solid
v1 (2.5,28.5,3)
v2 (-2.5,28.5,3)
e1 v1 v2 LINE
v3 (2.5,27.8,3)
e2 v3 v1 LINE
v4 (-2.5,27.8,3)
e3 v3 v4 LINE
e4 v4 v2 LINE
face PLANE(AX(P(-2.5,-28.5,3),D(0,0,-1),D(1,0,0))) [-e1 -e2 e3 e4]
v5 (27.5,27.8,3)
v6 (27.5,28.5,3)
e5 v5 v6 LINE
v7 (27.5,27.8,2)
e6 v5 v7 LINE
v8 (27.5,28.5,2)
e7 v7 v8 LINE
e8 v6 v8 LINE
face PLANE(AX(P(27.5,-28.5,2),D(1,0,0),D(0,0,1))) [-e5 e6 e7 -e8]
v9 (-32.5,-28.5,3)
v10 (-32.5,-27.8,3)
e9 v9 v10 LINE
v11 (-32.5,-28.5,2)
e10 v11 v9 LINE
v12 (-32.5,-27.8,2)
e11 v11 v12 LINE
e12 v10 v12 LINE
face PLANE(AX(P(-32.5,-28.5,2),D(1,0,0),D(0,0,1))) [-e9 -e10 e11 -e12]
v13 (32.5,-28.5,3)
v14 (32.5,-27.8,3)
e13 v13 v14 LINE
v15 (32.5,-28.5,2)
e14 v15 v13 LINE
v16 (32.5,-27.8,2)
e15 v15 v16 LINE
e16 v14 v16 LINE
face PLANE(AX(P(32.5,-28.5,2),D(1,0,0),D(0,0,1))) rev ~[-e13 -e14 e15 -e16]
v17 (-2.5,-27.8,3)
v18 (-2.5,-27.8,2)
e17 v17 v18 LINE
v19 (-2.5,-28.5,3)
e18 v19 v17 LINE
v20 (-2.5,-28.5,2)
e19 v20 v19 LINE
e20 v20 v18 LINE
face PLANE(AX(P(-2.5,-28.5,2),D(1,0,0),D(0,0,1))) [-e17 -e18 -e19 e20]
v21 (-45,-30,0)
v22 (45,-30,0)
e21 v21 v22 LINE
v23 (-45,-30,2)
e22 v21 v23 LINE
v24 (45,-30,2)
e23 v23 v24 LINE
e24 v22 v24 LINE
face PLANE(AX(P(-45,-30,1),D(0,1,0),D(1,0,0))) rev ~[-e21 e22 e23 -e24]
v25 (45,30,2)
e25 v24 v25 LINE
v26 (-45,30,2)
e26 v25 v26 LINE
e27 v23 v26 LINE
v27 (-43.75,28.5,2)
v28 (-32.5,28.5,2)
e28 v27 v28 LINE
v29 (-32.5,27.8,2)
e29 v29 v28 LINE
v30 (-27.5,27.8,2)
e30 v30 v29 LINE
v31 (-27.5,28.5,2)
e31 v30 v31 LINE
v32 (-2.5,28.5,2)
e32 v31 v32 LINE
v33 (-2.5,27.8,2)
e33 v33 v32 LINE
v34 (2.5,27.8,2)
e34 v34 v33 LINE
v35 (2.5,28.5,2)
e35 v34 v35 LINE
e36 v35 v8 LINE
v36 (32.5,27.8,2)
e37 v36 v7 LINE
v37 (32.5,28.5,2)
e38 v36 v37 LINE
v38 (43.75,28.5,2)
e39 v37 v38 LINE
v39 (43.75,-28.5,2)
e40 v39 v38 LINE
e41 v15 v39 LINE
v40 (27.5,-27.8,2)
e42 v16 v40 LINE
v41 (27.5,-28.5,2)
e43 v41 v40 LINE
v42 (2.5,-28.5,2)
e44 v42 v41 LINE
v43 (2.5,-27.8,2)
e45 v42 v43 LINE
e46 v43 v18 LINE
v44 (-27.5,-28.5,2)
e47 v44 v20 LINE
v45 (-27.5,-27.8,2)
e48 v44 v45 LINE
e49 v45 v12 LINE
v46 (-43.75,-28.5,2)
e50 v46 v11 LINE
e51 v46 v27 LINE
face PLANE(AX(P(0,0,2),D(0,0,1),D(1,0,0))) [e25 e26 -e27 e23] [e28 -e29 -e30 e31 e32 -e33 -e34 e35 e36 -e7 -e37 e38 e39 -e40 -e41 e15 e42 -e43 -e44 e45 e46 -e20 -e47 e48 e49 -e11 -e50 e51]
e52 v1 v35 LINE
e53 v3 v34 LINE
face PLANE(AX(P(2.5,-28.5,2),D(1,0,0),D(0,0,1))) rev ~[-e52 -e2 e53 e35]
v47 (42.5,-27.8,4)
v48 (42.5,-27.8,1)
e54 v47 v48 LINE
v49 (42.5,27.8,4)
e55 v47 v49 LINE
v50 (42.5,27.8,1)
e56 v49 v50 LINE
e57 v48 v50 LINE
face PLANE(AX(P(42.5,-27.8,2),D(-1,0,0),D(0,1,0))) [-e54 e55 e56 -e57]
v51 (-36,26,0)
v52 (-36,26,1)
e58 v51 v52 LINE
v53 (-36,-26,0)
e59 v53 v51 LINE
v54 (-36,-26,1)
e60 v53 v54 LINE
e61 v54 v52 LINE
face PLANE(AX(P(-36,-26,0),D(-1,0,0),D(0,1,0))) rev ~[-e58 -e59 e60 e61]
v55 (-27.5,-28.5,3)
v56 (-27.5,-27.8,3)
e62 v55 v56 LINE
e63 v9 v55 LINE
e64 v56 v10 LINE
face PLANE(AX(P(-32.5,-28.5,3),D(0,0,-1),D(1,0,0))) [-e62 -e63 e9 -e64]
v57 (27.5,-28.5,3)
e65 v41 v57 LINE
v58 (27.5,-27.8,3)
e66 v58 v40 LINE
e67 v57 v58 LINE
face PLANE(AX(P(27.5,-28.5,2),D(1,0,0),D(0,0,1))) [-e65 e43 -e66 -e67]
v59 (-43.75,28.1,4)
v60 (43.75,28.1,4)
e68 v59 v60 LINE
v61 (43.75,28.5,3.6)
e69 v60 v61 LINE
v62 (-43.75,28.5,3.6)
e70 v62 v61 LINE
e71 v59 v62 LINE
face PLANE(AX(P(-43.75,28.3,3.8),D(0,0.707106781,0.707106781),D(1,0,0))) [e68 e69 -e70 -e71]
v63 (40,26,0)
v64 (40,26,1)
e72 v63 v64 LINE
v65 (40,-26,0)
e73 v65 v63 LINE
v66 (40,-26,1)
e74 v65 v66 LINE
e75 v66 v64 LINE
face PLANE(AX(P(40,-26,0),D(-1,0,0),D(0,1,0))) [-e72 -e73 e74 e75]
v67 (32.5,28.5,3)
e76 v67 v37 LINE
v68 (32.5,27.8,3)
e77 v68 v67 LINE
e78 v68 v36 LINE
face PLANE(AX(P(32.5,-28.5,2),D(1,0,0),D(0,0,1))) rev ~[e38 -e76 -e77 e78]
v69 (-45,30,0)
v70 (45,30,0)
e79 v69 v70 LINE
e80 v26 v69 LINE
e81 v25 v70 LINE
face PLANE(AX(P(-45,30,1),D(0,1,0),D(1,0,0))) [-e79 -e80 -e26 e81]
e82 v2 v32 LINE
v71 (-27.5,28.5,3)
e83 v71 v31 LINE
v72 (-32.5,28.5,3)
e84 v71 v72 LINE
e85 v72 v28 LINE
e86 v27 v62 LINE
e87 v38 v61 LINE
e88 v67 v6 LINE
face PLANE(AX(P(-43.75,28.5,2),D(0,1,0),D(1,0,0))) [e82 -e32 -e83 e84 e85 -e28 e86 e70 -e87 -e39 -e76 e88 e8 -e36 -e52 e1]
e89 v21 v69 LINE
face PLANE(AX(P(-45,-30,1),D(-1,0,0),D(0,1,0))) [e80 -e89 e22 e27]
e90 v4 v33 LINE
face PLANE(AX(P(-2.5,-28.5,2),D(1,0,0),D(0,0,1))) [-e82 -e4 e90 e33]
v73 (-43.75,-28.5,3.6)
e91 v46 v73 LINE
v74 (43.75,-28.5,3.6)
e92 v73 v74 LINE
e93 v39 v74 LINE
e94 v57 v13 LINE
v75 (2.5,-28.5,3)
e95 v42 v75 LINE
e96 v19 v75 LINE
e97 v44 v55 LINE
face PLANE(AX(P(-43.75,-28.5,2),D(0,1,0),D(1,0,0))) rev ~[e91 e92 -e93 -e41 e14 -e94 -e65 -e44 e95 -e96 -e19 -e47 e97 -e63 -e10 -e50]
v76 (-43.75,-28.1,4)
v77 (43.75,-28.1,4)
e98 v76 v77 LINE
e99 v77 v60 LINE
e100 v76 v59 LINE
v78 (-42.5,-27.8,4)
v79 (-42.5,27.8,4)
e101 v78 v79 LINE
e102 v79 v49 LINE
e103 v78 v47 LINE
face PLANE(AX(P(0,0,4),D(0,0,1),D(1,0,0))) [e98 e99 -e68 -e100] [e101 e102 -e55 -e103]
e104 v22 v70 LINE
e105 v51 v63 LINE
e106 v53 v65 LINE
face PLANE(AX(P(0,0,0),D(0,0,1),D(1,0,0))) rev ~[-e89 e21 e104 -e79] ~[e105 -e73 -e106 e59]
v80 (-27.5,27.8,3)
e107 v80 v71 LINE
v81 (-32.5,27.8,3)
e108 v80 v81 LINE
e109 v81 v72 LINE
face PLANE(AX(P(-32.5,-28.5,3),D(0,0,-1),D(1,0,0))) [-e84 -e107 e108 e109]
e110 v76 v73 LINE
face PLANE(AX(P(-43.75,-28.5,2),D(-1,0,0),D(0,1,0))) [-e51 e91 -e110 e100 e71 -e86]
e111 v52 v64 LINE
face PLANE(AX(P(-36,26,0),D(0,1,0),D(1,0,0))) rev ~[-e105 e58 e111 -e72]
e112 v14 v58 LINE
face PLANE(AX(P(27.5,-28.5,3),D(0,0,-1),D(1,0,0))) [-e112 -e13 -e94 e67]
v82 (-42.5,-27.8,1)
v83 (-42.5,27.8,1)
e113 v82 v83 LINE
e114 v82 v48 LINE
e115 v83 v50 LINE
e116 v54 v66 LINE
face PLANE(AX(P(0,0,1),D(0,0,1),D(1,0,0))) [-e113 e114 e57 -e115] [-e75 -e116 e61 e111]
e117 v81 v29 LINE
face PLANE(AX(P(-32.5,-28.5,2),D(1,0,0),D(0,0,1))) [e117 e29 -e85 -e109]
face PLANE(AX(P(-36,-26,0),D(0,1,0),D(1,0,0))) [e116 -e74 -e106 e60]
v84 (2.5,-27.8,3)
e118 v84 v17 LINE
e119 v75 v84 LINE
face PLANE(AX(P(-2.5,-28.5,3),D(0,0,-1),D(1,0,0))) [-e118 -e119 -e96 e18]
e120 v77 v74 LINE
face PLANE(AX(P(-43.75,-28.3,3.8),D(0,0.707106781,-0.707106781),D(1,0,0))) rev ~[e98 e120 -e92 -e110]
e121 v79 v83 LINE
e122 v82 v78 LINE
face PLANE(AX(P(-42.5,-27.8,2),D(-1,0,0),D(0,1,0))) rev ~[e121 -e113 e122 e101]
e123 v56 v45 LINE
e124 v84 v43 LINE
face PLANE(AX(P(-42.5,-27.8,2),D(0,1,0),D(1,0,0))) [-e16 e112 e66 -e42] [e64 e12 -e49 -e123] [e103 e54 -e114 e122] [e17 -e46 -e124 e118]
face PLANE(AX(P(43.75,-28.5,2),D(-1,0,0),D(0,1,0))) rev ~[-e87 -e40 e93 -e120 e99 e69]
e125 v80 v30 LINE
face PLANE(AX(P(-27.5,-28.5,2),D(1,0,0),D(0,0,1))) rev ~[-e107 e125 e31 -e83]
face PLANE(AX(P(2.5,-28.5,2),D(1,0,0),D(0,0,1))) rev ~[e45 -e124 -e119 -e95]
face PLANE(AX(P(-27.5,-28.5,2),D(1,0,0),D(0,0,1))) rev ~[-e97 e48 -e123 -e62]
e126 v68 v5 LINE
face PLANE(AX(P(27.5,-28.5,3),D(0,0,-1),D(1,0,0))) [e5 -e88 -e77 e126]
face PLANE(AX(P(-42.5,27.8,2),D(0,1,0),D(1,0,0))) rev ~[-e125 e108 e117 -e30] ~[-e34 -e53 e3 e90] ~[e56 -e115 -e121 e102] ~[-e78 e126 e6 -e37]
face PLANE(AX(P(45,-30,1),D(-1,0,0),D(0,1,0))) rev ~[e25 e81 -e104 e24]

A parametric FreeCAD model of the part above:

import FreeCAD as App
import Part
import Sketcher

V = App.Vector
Q = App.Units.Quantity


def edges_at(feature, points):
    """Names of the edges that pass closest to the given points."""
    edges = feature.Shape.Edges
    near = lambda p: min(range(len(edges)), key=lambda i: edges[i].distToShape(Part.Vertex(*p))[0])
    return sorted({f"Edge{near(p) + 1}" for p in points})

doc = App.newDocument("Part")
params = doc.addObject("Spreadsheet::Sheet", "Params")
for row, (alias, value) in enumerate([
    ("sketch1_width", "90 mm"),
    ("sketch1_width2", "76 mm"),
    ("sketch1_height", "60 mm"),
    ("sketch1_height2", "52 mm"),
    ("pad1_length", "1 mm"),
    ("sketch2_width", "90 mm"),
    ("sketch2_width2", "85 mm"),
    ("sketch2_height", "60 mm"),
    ("sketch2_height2", "55.6 mm"),
    ("pad2_length", "1 mm"),
    ("sketch3_width", "85 mm"),
    ("sketch3_height", "57 mm"),
    ("sketch3_width2", "87.5 mm"),
    ("sketch3_height2", "55.6 mm"),
    ("pad3_length", "2 mm"),
    ("sketch4_width", "5 mm"),
    ("sketch4_height", "1 mm"),
    ("chamfer_size", "0.4 mm"),
], start=1):
    params.set(f"A{row}", alias)
    params.set(f"B{row}", "=" + value)
    params.setAlias(f"B{row}", alias)

body = doc.addObject("PartDesign::Body", "Body")

sketch1 = body.newObject("Sketcher::SketchObject", "Sketch")
sketch1.AttachmentSupport = (doc.getObject("XY_Plane"), [""])
sketch1.MapMode = "FlatFace"
sketch1.addGeometry(Part.LineSegment(V(-45, 30, 0), V(-45, -30, 0)), False)
sketch1.addGeometry(Part.LineSegment(V(-45, -30, 0), V(45, -30, 0)), False)
sketch1.addGeometry(Part.LineSegment(V(45, -30, 0), V(45, 30, 0)), False)
sketch1.addGeometry(Part.LineSegment(V(45, 30, 0), V(-45, 30, 0)), False)
sketch1.addGeometry(Part.LineSegment(V(40, -26, 0), V(-36, -26, 0)), False)
sketch1.addGeometry(Part.LineSegment(V(-36, -26, 0), V(-36, 26, 0)), False)
sketch1.addGeometry(Part.LineSegment(V(-36, 26, 0), V(40, 26, 0)), False)
sketch1.addGeometry(Part.LineSegment(V(40, 26, 0), V(40, -26, 0)), False)
sketch1.addConstraint(Sketcher.Constraint("Coincident", 0, 2, 1, 1))
sketch1.addConstraint(Sketcher.Constraint("Coincident", 1, 2, 2, 1))
sketch1.addConstraint(Sketcher.Constraint("Coincident", 2, 2, 3, 1))
sketch1.addConstraint(Sketcher.Constraint("Coincident", 3, 2, 0, 1))
sketch1.addConstraint(Sketcher.Constraint("Coincident", 4, 2, 5, 1))
sketch1.addConstraint(Sketcher.Constraint("Coincident", 5, 2, 6, 1))
sketch1.addConstraint(Sketcher.Constraint("Coincident", 6, 2, 7, 1))
sketch1.addConstraint(Sketcher.Constraint("Coincident", 7, 2, 4, 1))
sketch1.addConstraint(Sketcher.Constraint("Vertical", 0))
sketch1.addConstraint(Sketcher.Constraint("Horizontal", 1))
sketch1.addConstraint(Sketcher.Constraint("Vertical", 2))
sketch1.addConstraint(Sketcher.Constraint("Horizontal", 3))
sketch1.addConstraint(Sketcher.Constraint("Horizontal", 4))
sketch1.addConstraint(Sketcher.Constraint("Vertical", 5))
sketch1.addConstraint(Sketcher.Constraint("Horizontal", 6))
sketch1.addConstraint(Sketcher.Constraint("Vertical", 7))
sketch1.addConstraint(Sketcher.Constraint("Symmetric", 0, 2, 2, 2, -1, 1))
sketch1.addConstraint(Sketcher.Constraint("DistanceX", 1, 1, 1, 2, Q("90 mm")))
sketch1.addConstraint(Sketcher.Constraint("DistanceX", 4, 2, 4, 1, Q("76 mm")))
sketch1.addConstraint(Sketcher.Constraint("DistanceY", 0, 2, 0, 1, Q("60 mm")))
sketch1.addConstraint(Sketcher.Constraint("DistanceY", 5, 1, 5, 2, Q("52 mm")))
sketch1.addConstraint(Sketcher.Constraint("DistanceX", 4, 2, -1, 1, Q("36 mm")))
sketch1.addConstraint(Sketcher.Constraint("DistanceY", 4, 2, -1, 1, Q("26 mm")))
sketch1.setExpression("Constraints[17]", "Params.sketch1_width")
sketch1.setExpression("Constraints[18]", "Params.sketch1_width2")
sketch1.setExpression("Constraints[19]", "Params.sketch1_height")
sketch1.setExpression("Constraints[20]", "Params.sketch1_height2")
pad1 = body.newObject("PartDesign::Pad", "Pad")
pad1.Profile = sketch1
pad1.setExpression("Length", "Params.pad1_length")

sketch2 = body.newObject("Sketcher::SketchObject", "Sketch001")
sketch2.AttachmentSupport = (doc.getObject("XY_Plane"), [""])
sketch2.MapMode = "FlatFace"
sketch2.AttachmentOffset = App.Placement(V(0, 0, 1), App.Rotation())
sketch2.addGeometry(Part.LineSegment(V(-45, 30, 0), V(-45, -30, 0)), False)
sketch2.addGeometry(Part.LineSegment(V(-45, -30, 0), V(45, -30, 0)), False)
sketch2.addGeometry(Part.LineSegment(V(45, -30, 0), V(45, 30, 0)), False)
sketch2.addGeometry(Part.LineSegment(V(45, 30, 0), V(-45, 30, 0)), False)
sketch2.addGeometry(Part.LineSegment(V(42, -28, 0), V(-42, -28, 0)), False)
sketch2.addGeometry(Part.LineSegment(V(-42, -28, 0), V(-42, 28, 0)), False)
sketch2.addGeometry(Part.LineSegment(V(-42, 28, 0), V(42, 28, 0)), False)
sketch2.addGeometry(Part.LineSegment(V(42, 28, 0), V(42, -28, 0)), False)
sketch2.addConstraint(Sketcher.Constraint("Coincident", 0, 2, 1, 1))
sketch2.addConstraint(Sketcher.Constraint("Coincident", 1, 2, 2, 1))
sketch2.addConstraint(Sketcher.Constraint("Coincident", 2, 2, 3, 1))
sketch2.addConstraint(Sketcher.Constraint("Coincident", 3, 2, 0, 1))
sketch2.addConstraint(Sketcher.Constraint("Coincident", 4, 2, 5, 1))
sketch2.addConstraint(Sketcher.Constraint("Coincident", 5, 2, 6, 1))
sketch2.addConstraint(Sketcher.Constraint("Coincident", 6, 2, 7, 1))
sketch2.addConstraint(Sketcher.Constraint("Coincident", 7, 2, 4, 1))
sketch2.addConstraint(Sketcher.Constraint("Vertical", 0))
sketch2.addConstraint(Sketcher.Constraint("Horizontal", 1))
sketch2.addConstraint(Sketcher.Constraint("Vertical", 2))
sketch2.addConstraint(Sketcher.Constraint("Horizontal", 3))
sketch2.addConstraint(Sketcher.Constraint("Horizontal", 4))
sketch2.addConstraint(Sketcher.Constraint("Vertical", 5))
sketch2.addConstraint(Sketcher.Constraint("Horizontal", 6))
sketch2.addConstraint(Sketcher.Constraint("Vertical", 7))
sketch2.addConstraint(Sketcher.Constraint("Symmetric", 0, 2, 2, 2, -1, 1))
sketch2.addConstraint(Sketcher.Constraint("Symmetric", 4, 2, 6, 2, -1, 1))
sketch2.addConstraint(Sketcher.Constraint("DistanceX", 1, 1, 1, 2, Q("90 mm")))
sketch2.addConstraint(Sketcher.Constraint("DistanceX", 4, 2, 4, 1, Q("85 mm")))
sketch2.addConstraint(Sketcher.Constraint("DistanceY", 0, 2, 0, 1, Q("60 mm")))
sketch2.addConstraint(Sketcher.Constraint("DistanceY", 5, 1, 5, 2, Q("55.6 mm")))
sketch2.setExpression("Constraints[18]", "Params.sketch2_width")
sketch2.setExpression("Constraints[19]", "Params.sketch2_width2")
sketch2.setExpression("Constraints[20]", "Params.sketch2_height")
sketch2.setExpression("Constraints[21]", "Params.sketch2_height2")
pad2 = body.newObject("PartDesign::Pad", "Pad001")
pad2.Profile = sketch2
pad2.setExpression("Length", "Params.pad2_length")

sketch3 = body.newObject("Sketcher::SketchObject", "Sketch002")
sketch3.AttachmentSupport = (doc.getObject("XY_Plane"), [""])
sketch3.MapMode = "FlatFace"
sketch3.AttachmentOffset = App.Placement(V(0, 0, 2), App.Rotation())
sketch3.addGeometry(Part.LineSegment(V(-44, 28, 0), V(-44, -28, 0)), False)
sketch3.addGeometry(Part.LineSegment(V(-44, -28, 0), V(44, -28, 0)), False)
sketch3.addGeometry(Part.LineSegment(V(44, -28, 0), V(44, 28, 0)), False)
sketch3.addGeometry(Part.LineSegment(V(44, 28, 0), V(-44, 28, 0)), False)
sketch3.addGeometry(Part.LineSegment(V(42, -28, 0), V(-42, -28, 0)), False)
sketch3.addGeometry(Part.LineSegment(V(-42, -28, 0), V(-42, 28, 0)), False)
sketch3.addGeometry(Part.LineSegment(V(-42, 28, 0), V(42, 28, 0)), False)
sketch3.addGeometry(Part.LineSegment(V(42, 28, 0), V(42, -28, 0)), False)
sketch3.addConstraint(Sketcher.Constraint("Coincident", 0, 2, 1, 1))
sketch3.addConstraint(Sketcher.Constraint("Coincident", 1, 2, 2, 1))
sketch3.addConstraint(Sketcher.Constraint("Coincident", 2, 2, 3, 1))
sketch3.addConstraint(Sketcher.Constraint("Coincident", 3, 2, 0, 1))
sketch3.addConstraint(Sketcher.Constraint("Coincident", 4, 2, 5, 1))
sketch3.addConstraint(Sketcher.Constraint("Coincident", 5, 2, 6, 1))
sketch3.addConstraint(Sketcher.Constraint("Coincident", 6, 2, 7, 1))
sketch3.addConstraint(Sketcher.Constraint("Coincident", 7, 2, 4, 1))
sketch3.addConstraint(Sketcher.Constraint("Vertical", 0))
sketch3.addConstraint(Sketcher.Constraint("Horizontal", 1))
sketch3.addConstraint(Sketcher.Constraint("Vertical", 2))
sketch3.addConstraint(Sketcher.Constraint("Horizontal", 3))
sketch3.addConstraint(Sketcher.Constraint("Horizontal", 4))
sketch3.addConstraint(Sketcher.Constraint("Vertical", 5))
sketch3.addConstraint(Sketcher.Constraint("Horizontal", 6))
sketch3.addConstraint(Sketcher.Constraint("Vertical", 7))
sketch3.addConstraint(Sketcher.Constraint("Symmetric", 0, 2, 2, 2, -1, 1))
sketch3.addConstraint(Sketcher.Constraint("Symmetric", 4, 2, 6, 2, -1, 1))
sketch3.addConstraint(Sketcher.Constraint("DistanceX", 4, 2, 4, 1, Q("85 mm")))
sketch3.addConstraint(Sketcher.Constraint("DistanceY", 0, 2, 0, 1, Q("57 mm")))
sketch3.addConstraint(Sketcher.Constraint("DistanceX", 1, 1, 1, 2, Q("87.5 mm")))
sketch3.addConstraint(Sketcher.Constraint("DistanceY", 5, 1, 5, 2, Q("55.6 mm")))
sketch3.setExpression("Constraints[18]", "Params.sketch3_width")
sketch3.setExpression("Constraints[19]", "Params.sketch3_height")
sketch3.setExpression("Constraints[20]", "Params.sketch3_width2")
sketch3.setExpression("Constraints[21]", "Params.sketch3_height2")
pad3 = body.newObject("PartDesign::Pad", "Pad002")
pad3.Profile = sketch3
pad3.setExpression("Length", "Params.pad3_length")

sketch4 = body.newObject("Sketcher::SketchObject", "Sketch003")
sketch4.AttachmentSupport = (doc.getObject("XZ_Plane"), [""])
sketch4.MapMode = "FlatFace"
sketch4.AttachmentOffset = App.Placement(V(0, 0, 28.5), App.Rotation())
sketch4.addGeometry(Part.LineSegment(V(-32.5, 3, 0), V(-32.5, 2, 0)), False)
sketch4.addGeometry(Part.LineSegment(V(-32.5, 2, 0), V(-27.5, 2, 0)), False)
sketch4.addGeometry(Part.LineSegment(V(-27.5, 2, 0), V(-27.5, 3, 0)), False)
sketch4.addGeometry(Part.LineSegment(V(-27.5, 3, 0), V(-32.5, 3, 0)), False)
sketch4.addGeometry(Part.LineSegment(V(-2.5, 3, 0), V(-2.5, 2, 0)), False)
sketch4.addGeometry(Part.LineSegment(V(-2.5, 2, 0), V(2.5, 2, 0)), False)
sketch4.addGeometry(Part.LineSegment(V(2.5, 2, 0), V(2.5, 3, 0)), False)
sketch4.addGeometry(Part.LineSegment(V(2.5, 3, 0), V(-2.5, 3, 0)), False)
sketch4.addGeometry(Part.LineSegment(V(27.5, 3, 0), V(27.5, 2, 0)), False)
sketch4.addGeometry(Part.LineSegment(V(27.5, 2, 0), V(32.5, 2, 0)), False)
sketch4.addGeometry(Part.LineSegment(V(32.5, 2, 0), V(32.5, 3, 0)), False)
sketch4.addGeometry(Part.LineSegment(V(32.5, 3, 0), V(27.5, 3, 0)), False)
sketch4.addConstraint(Sketcher.Constraint("Coincident", 0, 2, 1, 1))
sketch4.addConstraint(Sketcher.Constraint("Coincident", 1, 2, 2, 1))
sketch4.addConstraint(Sketcher.Constraint("Coincident", 2, 2, 3, 1))
sketch4.addConstraint(Sketcher.Constraint("Coincident", 3, 2, 0, 1))
sketch4.addConstraint(Sketcher.Constraint("Coincident", 4, 2, 5, 1))
sketch4.addConstraint(Sketcher.Constraint("Coincident", 5, 2, 6, 1))
sketch4.addConstraint(Sketcher.Constraint("Coincident", 6, 2, 7, 1))
sketch4.addConstraint(Sketcher.Constraint("Coincident", 7, 2, 4, 1))
sketch4.addConstraint(Sketcher.Constraint("Coincident", 8, 2, 9, 1))
sketch4.addConstraint(Sketcher.Constraint("Coincident", 9, 2, 10, 1))
sketch4.addConstraint(Sketcher.Constraint("Coincident", 10, 2, 11, 1))
sketch4.addConstraint(Sketcher.Constraint("Coincident", 11, 2, 8, 1))
sketch4.addConstraint(Sketcher.Constraint("Vertical", 0))
sketch4.addConstraint(Sketcher.Constraint("Horizontal", 1))
sketch4.addConstraint(Sketcher.Constraint("Vertical", 2))
sketch4.addConstraint(Sketcher.Constraint("Horizontal", 3))
sketch4.addConstraint(Sketcher.Constraint("Vertical", 4))
sketch4.addConstraint(Sketcher.Constraint("Horizontal", 5))
sketch4.addConstraint(Sketcher.Constraint("Vertical", 6))
sketch4.addConstraint(Sketcher.Constraint("Horizontal", 7))
sketch4.addConstraint(Sketcher.Constraint("Vertical", 8))
sketch4.addConstraint(Sketcher.Constraint("Horizontal", 9))
sketch4.addConstraint(Sketcher.Constraint("Vertical", 10))
sketch4.addConstraint(Sketcher.Constraint("Horizontal", 11))
sketch4.addConstraint(Sketcher.Constraint("Symmetric", 1, 2, 8, 2, -2))
sketch4.addConstraint(Sketcher.Constraint("Symmetric", 3, 2, 10, 2, -2))
sketch4.addConstraint(Sketcher.Constraint("Horizontal", 1, 2, 4, 2))
sketch4.addConstraint(Sketcher.Constraint("Horizontal", 3, 2, 6, 2))
sketch4.addConstraint(Sketcher.Constraint("Equal", 3, 5))
sketch4.addConstraint(Sketcher.Constraint("DistanceX", 1, 1, 1, 2, Q("5 mm")))
sketch4.addConstraint(Sketcher.Constraint("DistanceY", 0, 2, 0, 1, Q("1 mm")))
sketch4.addConstraint(Sketcher.Constraint("DistanceY", -1, 1, 0, 2, Q("2 mm")))
sketch4.addConstraint(Sketcher.Constraint("DistanceX", 1, 2, 4, 2, Q("25 mm")))
sketch4.addConstraint(Sketcher.Constraint("DistanceX", 5, 2, 8, 2, Q("25 mm")))
sketch4.setExpression("Constraints[29]", "Params.sketch4_width")
sketch4.setExpression("Constraints[30]", "Params.sketch4_height")
pocket1 = body.newObject("PartDesign::Pocket", "Pocket")
pocket1.Profile = sketch4
pocket1.Type = "ThroughAll"
doc.recompute()

chamfer = body.newObject("PartDesign::Chamfer", "Chamfer")
chamfer.Base = (pocket1, edges_at(pocket1, [(0, -28.5, 4), (0, 28.5, 4)]))
chamfer.setExpression("Size", "Params.chamfer_size")

doc.recompute()
